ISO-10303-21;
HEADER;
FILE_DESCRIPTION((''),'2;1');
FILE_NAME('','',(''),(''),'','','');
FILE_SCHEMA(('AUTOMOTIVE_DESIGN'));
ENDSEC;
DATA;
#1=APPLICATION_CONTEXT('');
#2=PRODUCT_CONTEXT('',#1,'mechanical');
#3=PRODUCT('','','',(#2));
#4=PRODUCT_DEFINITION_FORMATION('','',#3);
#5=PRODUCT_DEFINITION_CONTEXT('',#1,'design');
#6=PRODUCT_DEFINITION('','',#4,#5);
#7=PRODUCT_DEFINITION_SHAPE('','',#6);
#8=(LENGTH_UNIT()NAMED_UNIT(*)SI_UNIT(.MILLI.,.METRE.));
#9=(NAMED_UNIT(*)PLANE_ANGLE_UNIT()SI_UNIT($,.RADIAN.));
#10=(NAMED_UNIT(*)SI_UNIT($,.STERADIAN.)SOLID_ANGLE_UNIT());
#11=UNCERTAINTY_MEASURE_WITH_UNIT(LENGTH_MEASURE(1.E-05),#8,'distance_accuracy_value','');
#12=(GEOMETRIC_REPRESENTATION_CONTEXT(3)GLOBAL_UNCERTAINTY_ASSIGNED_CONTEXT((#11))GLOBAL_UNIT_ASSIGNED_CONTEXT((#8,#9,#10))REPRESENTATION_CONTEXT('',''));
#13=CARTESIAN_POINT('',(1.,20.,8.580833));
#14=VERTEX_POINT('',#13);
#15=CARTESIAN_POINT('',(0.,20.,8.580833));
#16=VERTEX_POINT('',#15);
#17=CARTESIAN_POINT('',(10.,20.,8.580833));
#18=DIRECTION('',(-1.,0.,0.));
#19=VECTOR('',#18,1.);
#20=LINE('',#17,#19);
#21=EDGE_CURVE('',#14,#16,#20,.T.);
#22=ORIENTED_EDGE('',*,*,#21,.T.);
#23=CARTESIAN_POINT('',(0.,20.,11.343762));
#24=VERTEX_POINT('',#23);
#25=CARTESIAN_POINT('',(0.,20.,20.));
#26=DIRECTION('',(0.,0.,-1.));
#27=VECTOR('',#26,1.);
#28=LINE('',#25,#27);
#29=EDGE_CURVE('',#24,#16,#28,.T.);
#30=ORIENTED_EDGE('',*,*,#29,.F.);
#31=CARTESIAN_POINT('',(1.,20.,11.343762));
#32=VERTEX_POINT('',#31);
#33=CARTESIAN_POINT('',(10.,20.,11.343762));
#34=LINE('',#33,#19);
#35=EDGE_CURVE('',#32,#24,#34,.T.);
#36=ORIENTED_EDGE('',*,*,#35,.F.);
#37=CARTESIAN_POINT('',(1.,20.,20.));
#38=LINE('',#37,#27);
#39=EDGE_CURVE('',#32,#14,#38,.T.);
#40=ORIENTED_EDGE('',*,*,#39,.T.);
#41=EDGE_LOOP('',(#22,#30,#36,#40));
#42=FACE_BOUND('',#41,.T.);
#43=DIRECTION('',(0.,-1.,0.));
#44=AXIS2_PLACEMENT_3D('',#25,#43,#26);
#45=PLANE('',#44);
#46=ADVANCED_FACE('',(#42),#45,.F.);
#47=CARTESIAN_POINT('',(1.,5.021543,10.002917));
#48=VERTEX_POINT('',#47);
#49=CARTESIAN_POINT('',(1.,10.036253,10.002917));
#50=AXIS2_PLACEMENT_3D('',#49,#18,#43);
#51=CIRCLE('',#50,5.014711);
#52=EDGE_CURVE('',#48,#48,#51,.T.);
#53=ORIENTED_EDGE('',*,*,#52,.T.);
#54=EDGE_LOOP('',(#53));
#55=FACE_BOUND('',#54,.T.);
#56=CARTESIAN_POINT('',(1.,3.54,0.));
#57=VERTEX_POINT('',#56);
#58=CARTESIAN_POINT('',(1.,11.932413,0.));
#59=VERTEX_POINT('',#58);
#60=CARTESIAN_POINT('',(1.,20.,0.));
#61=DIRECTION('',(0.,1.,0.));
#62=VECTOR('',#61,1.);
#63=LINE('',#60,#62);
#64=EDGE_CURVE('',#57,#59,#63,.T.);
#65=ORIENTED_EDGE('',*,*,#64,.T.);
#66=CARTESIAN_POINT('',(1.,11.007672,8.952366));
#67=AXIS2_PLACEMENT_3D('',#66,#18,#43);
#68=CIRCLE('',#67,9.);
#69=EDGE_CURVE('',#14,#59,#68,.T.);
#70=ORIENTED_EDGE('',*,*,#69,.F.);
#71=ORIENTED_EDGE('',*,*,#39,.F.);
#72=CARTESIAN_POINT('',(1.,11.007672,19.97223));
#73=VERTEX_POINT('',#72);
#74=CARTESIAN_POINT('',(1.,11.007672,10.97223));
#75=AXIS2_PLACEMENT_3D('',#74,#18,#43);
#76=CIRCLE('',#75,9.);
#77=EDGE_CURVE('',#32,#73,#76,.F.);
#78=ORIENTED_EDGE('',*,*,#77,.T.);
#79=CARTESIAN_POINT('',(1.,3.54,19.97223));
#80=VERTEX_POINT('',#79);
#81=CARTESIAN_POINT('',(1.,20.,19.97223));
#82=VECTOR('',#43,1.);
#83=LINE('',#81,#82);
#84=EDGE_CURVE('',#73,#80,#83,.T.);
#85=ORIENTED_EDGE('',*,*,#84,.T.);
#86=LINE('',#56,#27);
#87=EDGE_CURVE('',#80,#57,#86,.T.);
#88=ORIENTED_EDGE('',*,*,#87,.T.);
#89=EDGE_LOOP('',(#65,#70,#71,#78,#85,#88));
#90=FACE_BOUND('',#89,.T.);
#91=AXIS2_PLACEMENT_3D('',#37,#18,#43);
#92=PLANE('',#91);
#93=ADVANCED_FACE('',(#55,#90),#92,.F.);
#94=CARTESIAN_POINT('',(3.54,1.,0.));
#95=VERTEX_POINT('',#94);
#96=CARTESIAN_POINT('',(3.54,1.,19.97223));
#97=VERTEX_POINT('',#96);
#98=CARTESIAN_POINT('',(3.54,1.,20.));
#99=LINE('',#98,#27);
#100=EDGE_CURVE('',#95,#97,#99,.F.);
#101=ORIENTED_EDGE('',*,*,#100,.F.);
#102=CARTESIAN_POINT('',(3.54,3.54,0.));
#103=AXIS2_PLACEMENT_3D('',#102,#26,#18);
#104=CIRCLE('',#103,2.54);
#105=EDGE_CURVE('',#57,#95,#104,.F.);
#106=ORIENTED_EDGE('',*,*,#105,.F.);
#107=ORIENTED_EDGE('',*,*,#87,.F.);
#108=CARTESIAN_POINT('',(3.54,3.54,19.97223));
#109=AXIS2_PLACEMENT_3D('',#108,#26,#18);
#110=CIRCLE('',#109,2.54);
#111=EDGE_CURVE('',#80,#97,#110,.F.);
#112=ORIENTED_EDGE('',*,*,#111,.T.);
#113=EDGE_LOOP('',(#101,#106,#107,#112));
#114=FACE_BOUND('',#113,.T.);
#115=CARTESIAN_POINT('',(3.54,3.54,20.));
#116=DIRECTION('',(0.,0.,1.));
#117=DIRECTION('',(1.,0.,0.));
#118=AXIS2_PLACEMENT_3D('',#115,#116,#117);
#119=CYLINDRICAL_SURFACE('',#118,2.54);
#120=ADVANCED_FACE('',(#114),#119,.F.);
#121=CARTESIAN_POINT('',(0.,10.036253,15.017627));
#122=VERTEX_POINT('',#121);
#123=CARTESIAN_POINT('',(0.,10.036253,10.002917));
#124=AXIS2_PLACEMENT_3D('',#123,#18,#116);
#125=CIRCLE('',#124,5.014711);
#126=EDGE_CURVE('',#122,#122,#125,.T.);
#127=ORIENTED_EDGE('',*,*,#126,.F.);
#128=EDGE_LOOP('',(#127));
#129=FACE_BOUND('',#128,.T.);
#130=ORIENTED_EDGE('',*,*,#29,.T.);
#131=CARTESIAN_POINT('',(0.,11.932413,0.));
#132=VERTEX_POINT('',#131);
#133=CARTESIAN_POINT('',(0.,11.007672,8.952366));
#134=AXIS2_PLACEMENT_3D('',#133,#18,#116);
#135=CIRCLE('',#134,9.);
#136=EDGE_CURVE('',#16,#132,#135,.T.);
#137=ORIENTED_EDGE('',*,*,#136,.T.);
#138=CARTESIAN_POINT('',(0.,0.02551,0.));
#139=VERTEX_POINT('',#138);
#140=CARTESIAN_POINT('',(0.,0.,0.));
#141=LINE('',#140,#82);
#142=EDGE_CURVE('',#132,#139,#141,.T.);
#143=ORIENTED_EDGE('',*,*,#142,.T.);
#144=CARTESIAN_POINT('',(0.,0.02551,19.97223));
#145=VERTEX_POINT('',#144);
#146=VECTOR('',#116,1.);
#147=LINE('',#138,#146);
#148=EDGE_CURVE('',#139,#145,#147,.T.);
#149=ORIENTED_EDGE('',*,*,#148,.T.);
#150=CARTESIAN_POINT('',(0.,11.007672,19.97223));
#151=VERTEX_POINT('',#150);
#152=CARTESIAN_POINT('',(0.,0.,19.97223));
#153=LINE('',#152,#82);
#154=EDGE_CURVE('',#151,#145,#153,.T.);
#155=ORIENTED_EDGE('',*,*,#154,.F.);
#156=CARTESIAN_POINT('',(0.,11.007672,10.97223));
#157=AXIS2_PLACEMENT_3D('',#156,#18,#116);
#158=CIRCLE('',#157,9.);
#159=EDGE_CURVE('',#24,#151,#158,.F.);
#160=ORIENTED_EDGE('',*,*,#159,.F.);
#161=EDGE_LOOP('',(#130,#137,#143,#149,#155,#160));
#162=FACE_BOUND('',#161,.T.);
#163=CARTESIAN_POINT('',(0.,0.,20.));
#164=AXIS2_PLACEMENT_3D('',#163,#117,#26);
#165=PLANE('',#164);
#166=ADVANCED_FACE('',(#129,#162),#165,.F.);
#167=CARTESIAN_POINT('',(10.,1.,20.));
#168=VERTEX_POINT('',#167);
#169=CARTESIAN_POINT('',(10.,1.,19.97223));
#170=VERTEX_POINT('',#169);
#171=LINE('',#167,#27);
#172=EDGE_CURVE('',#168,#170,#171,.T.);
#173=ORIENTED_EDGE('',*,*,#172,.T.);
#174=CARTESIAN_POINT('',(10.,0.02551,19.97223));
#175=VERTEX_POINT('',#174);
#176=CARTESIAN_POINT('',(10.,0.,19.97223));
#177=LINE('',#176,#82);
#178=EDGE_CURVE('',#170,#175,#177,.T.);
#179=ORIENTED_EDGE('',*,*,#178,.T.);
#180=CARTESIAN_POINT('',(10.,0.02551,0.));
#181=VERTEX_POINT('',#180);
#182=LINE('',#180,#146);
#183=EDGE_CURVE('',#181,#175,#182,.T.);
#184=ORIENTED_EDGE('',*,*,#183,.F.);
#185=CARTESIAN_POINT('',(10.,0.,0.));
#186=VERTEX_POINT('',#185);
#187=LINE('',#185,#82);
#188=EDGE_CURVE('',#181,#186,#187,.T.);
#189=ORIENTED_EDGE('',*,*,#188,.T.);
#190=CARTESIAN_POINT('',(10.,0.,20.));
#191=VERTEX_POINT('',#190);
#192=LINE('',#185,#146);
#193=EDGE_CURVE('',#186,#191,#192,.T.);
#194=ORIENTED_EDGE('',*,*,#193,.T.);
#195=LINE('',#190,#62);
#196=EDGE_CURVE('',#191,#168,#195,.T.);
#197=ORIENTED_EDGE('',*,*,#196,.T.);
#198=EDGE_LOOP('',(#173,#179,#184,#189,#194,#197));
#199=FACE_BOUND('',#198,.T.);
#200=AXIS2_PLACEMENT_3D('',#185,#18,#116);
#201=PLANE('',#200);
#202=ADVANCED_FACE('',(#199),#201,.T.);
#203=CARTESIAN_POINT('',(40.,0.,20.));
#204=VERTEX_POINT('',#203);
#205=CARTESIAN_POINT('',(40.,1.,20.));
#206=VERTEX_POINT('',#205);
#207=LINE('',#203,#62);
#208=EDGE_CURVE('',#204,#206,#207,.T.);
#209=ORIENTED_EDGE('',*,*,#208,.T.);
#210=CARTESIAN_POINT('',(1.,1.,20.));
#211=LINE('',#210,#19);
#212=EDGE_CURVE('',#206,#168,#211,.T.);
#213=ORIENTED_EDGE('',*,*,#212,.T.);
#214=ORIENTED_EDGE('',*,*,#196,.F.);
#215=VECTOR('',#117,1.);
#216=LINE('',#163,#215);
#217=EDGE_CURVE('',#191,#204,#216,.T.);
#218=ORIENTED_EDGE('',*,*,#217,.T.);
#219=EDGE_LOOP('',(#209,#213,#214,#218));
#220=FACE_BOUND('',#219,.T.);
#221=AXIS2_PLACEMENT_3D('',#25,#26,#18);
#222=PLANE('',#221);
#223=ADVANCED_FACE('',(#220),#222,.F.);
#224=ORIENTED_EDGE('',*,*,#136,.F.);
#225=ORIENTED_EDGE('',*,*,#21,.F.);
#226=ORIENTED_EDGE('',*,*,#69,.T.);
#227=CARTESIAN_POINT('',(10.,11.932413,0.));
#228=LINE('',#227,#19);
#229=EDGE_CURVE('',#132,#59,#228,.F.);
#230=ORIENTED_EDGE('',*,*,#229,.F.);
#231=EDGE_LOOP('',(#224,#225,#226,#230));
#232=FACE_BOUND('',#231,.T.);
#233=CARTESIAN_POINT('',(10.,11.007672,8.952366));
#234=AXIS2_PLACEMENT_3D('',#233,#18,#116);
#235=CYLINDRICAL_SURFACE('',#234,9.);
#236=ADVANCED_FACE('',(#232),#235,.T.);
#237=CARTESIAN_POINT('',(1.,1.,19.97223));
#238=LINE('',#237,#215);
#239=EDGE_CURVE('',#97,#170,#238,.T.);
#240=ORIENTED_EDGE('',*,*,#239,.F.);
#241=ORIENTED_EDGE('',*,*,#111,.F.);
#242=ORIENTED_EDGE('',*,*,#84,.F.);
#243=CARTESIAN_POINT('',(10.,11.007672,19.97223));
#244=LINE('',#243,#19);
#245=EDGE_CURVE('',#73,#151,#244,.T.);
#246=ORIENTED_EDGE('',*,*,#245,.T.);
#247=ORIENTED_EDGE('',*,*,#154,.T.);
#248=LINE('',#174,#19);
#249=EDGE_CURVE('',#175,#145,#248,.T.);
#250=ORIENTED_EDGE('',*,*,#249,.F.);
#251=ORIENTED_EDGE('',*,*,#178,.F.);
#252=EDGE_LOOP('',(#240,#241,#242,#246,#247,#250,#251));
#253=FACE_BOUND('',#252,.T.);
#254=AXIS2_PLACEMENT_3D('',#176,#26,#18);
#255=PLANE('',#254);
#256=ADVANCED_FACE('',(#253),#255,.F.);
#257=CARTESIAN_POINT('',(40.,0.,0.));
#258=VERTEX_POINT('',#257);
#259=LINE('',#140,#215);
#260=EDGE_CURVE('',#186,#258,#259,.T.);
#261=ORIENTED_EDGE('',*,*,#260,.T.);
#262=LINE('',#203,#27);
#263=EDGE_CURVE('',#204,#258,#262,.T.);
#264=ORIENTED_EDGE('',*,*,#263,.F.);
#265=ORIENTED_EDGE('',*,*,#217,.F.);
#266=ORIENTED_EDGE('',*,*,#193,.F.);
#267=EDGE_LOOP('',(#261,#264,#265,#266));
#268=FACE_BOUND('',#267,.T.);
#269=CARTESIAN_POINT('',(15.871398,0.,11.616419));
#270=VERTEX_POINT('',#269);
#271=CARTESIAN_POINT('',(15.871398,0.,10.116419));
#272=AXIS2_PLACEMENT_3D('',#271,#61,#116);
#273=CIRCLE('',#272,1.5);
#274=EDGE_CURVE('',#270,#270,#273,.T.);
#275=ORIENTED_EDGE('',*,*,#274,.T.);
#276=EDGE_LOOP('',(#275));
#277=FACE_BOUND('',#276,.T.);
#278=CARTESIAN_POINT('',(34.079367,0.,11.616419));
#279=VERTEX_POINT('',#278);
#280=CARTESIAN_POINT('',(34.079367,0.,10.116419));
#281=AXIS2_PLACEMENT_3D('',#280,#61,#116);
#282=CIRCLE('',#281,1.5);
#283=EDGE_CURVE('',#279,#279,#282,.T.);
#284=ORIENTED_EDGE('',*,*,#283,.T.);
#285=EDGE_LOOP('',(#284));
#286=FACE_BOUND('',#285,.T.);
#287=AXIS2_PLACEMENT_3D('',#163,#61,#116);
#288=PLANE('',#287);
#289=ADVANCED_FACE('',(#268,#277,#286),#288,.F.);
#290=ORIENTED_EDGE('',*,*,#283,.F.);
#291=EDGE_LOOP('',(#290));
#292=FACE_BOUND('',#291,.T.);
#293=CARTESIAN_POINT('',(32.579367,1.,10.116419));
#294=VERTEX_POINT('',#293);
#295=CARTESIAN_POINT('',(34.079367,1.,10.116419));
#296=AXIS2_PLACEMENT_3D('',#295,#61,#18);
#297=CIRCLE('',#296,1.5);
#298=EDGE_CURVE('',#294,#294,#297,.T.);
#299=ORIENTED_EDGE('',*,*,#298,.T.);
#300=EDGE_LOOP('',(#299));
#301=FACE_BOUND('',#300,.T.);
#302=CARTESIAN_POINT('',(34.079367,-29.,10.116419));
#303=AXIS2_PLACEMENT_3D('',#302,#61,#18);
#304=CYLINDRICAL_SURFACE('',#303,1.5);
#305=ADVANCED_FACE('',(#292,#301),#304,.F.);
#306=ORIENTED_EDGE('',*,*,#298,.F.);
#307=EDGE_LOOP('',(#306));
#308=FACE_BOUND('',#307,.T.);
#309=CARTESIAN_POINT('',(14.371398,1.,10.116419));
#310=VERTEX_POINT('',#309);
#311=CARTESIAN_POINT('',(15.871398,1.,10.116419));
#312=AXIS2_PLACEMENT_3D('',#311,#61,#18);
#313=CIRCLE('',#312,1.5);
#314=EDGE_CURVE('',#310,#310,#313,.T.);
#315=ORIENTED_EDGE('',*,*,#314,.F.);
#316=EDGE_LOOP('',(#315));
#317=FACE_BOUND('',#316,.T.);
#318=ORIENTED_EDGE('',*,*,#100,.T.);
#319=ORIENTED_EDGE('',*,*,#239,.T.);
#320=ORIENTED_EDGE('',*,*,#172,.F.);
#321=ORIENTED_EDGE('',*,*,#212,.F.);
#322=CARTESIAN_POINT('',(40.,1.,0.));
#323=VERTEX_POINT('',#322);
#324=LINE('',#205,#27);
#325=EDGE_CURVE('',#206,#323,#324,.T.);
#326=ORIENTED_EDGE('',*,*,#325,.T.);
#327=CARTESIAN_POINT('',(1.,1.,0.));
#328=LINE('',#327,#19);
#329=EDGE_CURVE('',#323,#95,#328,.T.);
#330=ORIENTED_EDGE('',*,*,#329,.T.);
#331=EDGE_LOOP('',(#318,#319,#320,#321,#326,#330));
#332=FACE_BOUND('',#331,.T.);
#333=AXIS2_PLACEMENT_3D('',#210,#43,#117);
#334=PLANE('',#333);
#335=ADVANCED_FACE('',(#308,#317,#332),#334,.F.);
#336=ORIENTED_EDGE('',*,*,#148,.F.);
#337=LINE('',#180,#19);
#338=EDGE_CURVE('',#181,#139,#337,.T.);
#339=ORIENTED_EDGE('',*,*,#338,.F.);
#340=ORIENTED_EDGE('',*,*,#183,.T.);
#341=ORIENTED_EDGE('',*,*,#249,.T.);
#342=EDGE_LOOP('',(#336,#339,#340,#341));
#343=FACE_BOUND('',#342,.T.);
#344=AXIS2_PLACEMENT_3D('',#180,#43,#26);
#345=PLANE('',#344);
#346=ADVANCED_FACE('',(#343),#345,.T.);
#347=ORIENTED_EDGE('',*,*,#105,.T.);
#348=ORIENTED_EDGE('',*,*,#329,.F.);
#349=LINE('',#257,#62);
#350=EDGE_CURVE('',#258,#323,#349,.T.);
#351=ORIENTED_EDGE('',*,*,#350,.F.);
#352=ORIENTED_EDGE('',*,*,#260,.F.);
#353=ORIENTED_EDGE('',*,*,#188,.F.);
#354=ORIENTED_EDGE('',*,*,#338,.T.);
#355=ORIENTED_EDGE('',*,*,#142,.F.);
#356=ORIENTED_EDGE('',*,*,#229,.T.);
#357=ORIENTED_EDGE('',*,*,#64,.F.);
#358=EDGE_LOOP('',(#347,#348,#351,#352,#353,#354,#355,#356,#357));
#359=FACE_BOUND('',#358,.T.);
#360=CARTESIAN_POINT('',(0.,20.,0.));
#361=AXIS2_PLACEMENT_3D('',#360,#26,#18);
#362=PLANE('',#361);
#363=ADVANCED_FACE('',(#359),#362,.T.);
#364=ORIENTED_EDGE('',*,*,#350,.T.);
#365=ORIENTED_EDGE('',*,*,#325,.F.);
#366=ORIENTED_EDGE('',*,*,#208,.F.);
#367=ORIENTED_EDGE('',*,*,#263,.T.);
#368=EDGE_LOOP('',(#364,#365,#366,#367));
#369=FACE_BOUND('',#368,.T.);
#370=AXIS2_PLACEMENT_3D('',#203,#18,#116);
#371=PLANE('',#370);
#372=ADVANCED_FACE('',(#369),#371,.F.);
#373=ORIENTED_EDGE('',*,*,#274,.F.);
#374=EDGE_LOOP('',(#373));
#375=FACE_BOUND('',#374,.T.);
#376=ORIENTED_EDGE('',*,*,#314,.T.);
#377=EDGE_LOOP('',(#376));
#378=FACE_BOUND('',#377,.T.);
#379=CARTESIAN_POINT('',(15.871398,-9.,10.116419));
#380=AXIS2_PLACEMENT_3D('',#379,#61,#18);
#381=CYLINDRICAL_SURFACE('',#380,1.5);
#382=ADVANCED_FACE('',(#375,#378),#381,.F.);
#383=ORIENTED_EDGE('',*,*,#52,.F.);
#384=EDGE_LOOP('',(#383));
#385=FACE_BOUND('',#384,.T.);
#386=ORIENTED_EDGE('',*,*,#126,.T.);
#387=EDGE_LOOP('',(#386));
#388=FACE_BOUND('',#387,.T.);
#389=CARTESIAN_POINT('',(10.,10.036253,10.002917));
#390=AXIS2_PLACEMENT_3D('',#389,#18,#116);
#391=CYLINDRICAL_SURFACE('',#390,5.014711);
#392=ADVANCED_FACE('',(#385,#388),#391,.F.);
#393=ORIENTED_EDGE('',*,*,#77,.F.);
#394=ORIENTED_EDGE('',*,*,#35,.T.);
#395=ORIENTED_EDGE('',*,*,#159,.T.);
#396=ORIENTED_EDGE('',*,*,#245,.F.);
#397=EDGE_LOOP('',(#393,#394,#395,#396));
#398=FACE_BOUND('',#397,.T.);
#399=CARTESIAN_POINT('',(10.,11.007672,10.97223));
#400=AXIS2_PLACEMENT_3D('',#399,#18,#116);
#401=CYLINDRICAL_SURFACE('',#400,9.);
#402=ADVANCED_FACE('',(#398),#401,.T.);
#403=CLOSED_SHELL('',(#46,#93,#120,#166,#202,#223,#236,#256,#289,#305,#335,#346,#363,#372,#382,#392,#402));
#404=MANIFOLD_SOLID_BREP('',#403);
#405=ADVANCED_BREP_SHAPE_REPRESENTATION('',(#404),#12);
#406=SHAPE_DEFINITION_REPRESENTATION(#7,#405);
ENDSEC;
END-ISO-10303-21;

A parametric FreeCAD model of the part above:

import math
import FreeCAD as App
import Part
import Sketcher

V = App.Vector


def edges_at(feature, points):
    """Names of the edges that pass closest to the given points."""
    edges = feature.Shape.Edges
    near = lambda p: min(range(len(edges)), key=lambda i: edges[i].distToShape(Part.Vertex(*p))[0])
    return sorted({f"Edge{near(p) + 1}" for p in points})


def add_polygon(sketch, points):
    """Adds a closed chain of lines whose ends are joined by coincident constraints."""
    first, n = sketch.GeometryCount, len(points)
    for a, b in zip(points, points[1:] + points[:1]):
        sketch.addGeometry(Part.LineSegment(App.Vector(*a, 0), App.Vector(*b, 0)), False)
    for i in range(n):
        sketch.addConstraint(Sketcher.Constraint("Coincident", first + i, 2, first + (i + 1) % n, 1))

doc = App.newDocument("Part")
body = doc.addObject("PartDesign::Body", "Body")

# Sketch on XY plane
sketch1 = doc.addObject("Sketcher::SketchObject", "Sketch")
body.addObject(sketch1)
sketch1.AttachmentSupport = (doc.XY_Plane, [""])
sketch1.MapMode = "FlatFace"
add_polygon(sketch1, [(1, 1), (1, 20), (0, 20), (0, 0), (40, 0), (40, 1)])  # lines 0-5
sketch1.addConstraint(Sketcher.Constraint("Vertical", 0))
sketch1.addConstraint(Sketcher.Constraint("Horizontal", 1))
sketch1.addConstraint(Sketcher.Constraint("Vertical", 2))
sketch1.addConstraint(Sketcher.Constraint("Horizontal", 3))
sketch1.addConstraint(Sketcher.Constraint("Vertical", 4))
sketch1.addConstraint(Sketcher.Constraint("Horizontal", 5))
sketch1.addConstraint(Sketcher.Constraint("Coincident", 2, 2, -1, 1))
sketch1.addConstraint(Sketcher.Constraint("Equal", 1, 4))
sketch1.addConstraint(Sketcher.Constraint("DistanceX", 1, 2, 1, 1, 1.0))
sketch1.addConstraint(Sketcher.Constraint("DistanceX", 3, 1, 3, 2, 40.0))
sketch1.addConstraint(Sketcher.Constraint("DistanceY", 0, 1, 0, 2, 19.0))
pad1 = doc.addObject("PartDesign::Pad", "Pad")
body.addObject(pad1)
pad1.Profile = sketch1
pad1.Length = 20
doc.recompute()

fillet = doc.addObject("PartDesign::Fillet", "Fillet")
body.addObject(fillet)
fillet.Base = (pad1, edges_at(pad1, [(1, 1, 10)]))
fillet.Radius = 2.54

# Sketch on YZ plane
sketch2 = doc.addObject("Sketcher::SketchObject", "Sketch001")
body.addObject(sketch2)
sketch2.AttachmentSupport = (doc.YZ_Plane, [""])
sketch2.MapMode = "FlatFace"
sketch2.addGeometry(Part.Circle(V(10, 10, 0), V(0, 0, 1), 5), False)
sketch2.addConstraint(Sketcher.Constraint("Diameter", 0, 10.029422))
sketch2.addConstraint(Sketcher.Constraint("DistanceX", -1, 1, 0, 3, 10.036253))
sketch2.addConstraint(Sketcher.Constraint("DistanceY", -1, 1, 0, 3, 10.002917))
pocket1 = doc.addObject("PartDesign::Pocket", "Pocket")
body.addObject(pocket1)
pocket1.Profile = sketch2
pocket1.Length = 10
pocket1.Reversed = True

# Sketch on YZ plane
sketch3 = doc.addObject("Sketcher::SketchObject", "Sketch002")
body.addObject(sketch3)
sketch3.AttachmentSupport = (doc.YZ_Plane, [""])
sketch3.MapMode = "FlatFace"
sketch3.addGeometry(Part.LineSegment(V(20, 20, 0), V(20, 11.344, 0)), False)
sketch3.addGeometry(Part.ArcOfCircle(Part.Circle(V(11.008, 10.972, 0), V(0, 0, 1), 9), math.radians(2), math.radians(90)), False)
sketch3.addGeometry(Part.LineSegment(V(11.008, 19.972, 0), V(0.026, 19.972, 0)), False)
sketch3.addGeometry(Part.LineSegment(V(0.026, 19.972, 0), V(0.026, 0, 0)), False)
sketch3.addGeometry(Part.LineSegment(V(0.026, 0, 0), V(0, 0, 0)), False)
sketch3.addGeometry(Part.LineSegment(V(0, 0, 0), V(0, 20, 0)), False)
sketch3.addGeometry(Part.LineSegment(V(0, 20, 0), V(20, 20, 0)), False)
sketch3.addGeometry(Part.ArcOfCircle(Part.Circle(V(11.008, 8.952, 0), V(0, 0, 1), 9), math.radians(-4.34), math.radians(-2.37)), False)
sketch3.addGeometry(Part.LineSegment(V(20, 8.581, 0), V(20, 0, 0)), False)
sketch3.addGeometry(Part.LineSegment(V(20, 0, 0), V(11.932, 0, 0)), False)
sketch3.addGeometry(Part.ArcOfCircle(Part.Circle(V(11.008, 8.952, 0), V(0, 0, 1), 9), math.radians(-84), math.radians(-5)), False)
sketch3.addGeometry(Part.ArcOfCircle(Part.Circle(V(11.008, 8.952, 0), V(0, 0, 1), 9), math.radians(-5.25), math.radians(-4.34)), False)
sketch3.addConstraint(Sketcher.Constraint("Coincident", 0, 2, 1, 1))
sketch3.addConstraint(Sketcher.Constraint("Tangent", 1, 2, 2, 1))
sketch3.addConstraint(Sketcher.Constraint("Coincident", 2, 2, 3, 1))
sketch3.addConstraint(Sketcher.Constraint("Coincident", 3, 2, 4, 1))
sketch3.addConstraint(Sketcher.Constraint("Coincident", 4, 2, 5, 1))
sketch3.addConstraint(Sketcher.Constraint("Coincident", 5, 2, 6, 1))
sketch3.addConstraint(Sketcher.Constraint("Coincident", 6, 2, 0, 1))
sketch3.addConstraint(Sketcher.Constraint("Coincident", 7, 2, 8, 1))
sketch3.addConstraint(Sketcher.Constraint("Coincident", 8, 2, 9, 1))
sketch3.addConstraint(Sketcher.Constraint("Coincident", 9, 2, 10, 1))
sketch3.addConstraint(Sketcher.Constraint("Tangent", 10, 2, 11, 1))
sketch3.addConstraint(Sketcher.Constraint("Tangent", 11, 2, 7, 1))
sketch3.addConstraint(Sketcher.Constraint("Vertical", 0))
sketch3.addConstraint(Sketcher.Constraint("Horizontal", 2))
sketch3.addConstraint(Sketcher.Constraint("Vertical", 3))
sketch3.addConstraint(Sketcher.Constraint("Horizontal", 4))
sketch3.addConstraint(Sketcher.Constraint("Vertical", 5))
sketch3.addConstraint(Sketcher.Constraint("Horizontal", 6))
sketch3.addConstraint(Sketcher.Constraint("Vertical", 8))
sketch3.addConstraint(Sketcher.Constraint("Horizontal", 9))
sketch3.addConstraint(Sketcher.Constraint("Coincident", 4, 2, -1, 1))
sketch3.addConstraint(Sketcher.Constraint("Coincident", 10, 3, 7, 3))
sketch3.addConstraint(Sketcher.Constraint("Equal", 1, 7))
sketch3.addConstraint(Sketcher.Constraint("PointOnObject", 8, 2, -1))
sketch3.addConstraint(Sketcher.Constraint("Vertical", 1, 3, 7, 3))
sketch3.addConstraint(Sketcher.Constraint("Vertical", 6, 2, 7, 2))
sketch3.addConstraint(Sketcher.Constraint("Equal", 6, 5))
sketch3.addConstraint(Sketcher.Constraint("Radius", 1, 9.0))
sketch3.addConstraint(Sketcher.Constraint("DistanceX", 6, 1, 6, 2, 20.0))
sketch3.addConstraint(Sketcher.Constraint("DistanceX", 2, 2, 2, 1, 10.982162))
sketch3.addConstraint(Sketcher.Constraint("DistanceX", 4, 2, 4, 1, 0.02551))
sketch3.addConstraint(Sketcher.Constraint("DistanceY", 3, 2, 3, 1, 19.97223))
sketch3.addConstraint(Sketcher.Constraint("DistanceY", 10, 2, 7, 2, 0.4514))
sketch3.addConstraint(Sketcher.Constraint("DistanceX", 9, 2, 9, 1, 8.067587))
sketch3.addConstraint(Sketcher.Constraint("DistanceY", -1, 1, 11, 2, 8.270768))
pocket2 = doc.addObject("PartDesign::Pocket", "Pocket001")
body.addObject(pocket2)
pocket2.Profile = sketch3
pocket2.Length = 10
pocket2.Reversed = True

# Sketch on XZ plane
sketch4 = doc.addObject("Sketcher::SketchObject", "Sketch003")
body.addObject(sketch4)
sketch4.AttachmentSupport = (doc.XZ_Plane, [""])
sketch4.MapMode = "FlatFace"
sketch4.AttachmentOffset = App.Placement(V(0, 0, -1), App.Rotation())
sketch4.addGeometry(Part.Circle(V(15.9, 10.1, 0), V(0, 0, 1), 1.5), False)
sketch4.addConstraint(Sketcher.Constraint("Diameter", 0, 3.0))
sketch4.addConstraint(Sketcher.Constraint("DistanceY", -1, 1, 0, 3, 10.116419))
sketch4.addConstraint(Sketcher.Constraint("DistanceX", -1, 1, 0, 3, 15.871398))
pocket3 = doc.addObject("PartDesign::Pocket", "Pocket002")
body.addObject(pocket3)
pocket3.Profile = sketch4
pocket3.Length = 10
pocket3.Reversed = True

# Sketch on XZ plane
sketch5 = doc.addObject("Sketcher::SketchObject", "Sketch004")
body.addObject(sketch5)
sketch5.AttachmentSupport = (doc.XZ_Plane, [""])
sketch5.MapMode = "FlatFace"
sketch5.AttachmentOffset = App.Placement(V(0, 0, -1), App.Rotation())
sketch5.addGeometry(Part.Circle(V(34.1, 10.1, 0), V(0, 0, 1), 1.5), False)
sketch5.addConstraint(Sketcher.Constraint("Diameter", 0, 3.0))
sketch5.addConstraint(Sketcher.Constraint("DistanceY", -1, 1, 0, 3, 10.116419))
sketch5.addConstraint(Sketcher.Constraint("DistanceX", -1, 1, 0, 3, 34.079367))
pocket4 = doc.addObject("PartDesign::Pocket", "Pocket003")
body.addObject(pocket4)
pocket4.Profile = sketch5
pocket4.Length = 30
pocket4.Reversed = True

doc.recompute()
